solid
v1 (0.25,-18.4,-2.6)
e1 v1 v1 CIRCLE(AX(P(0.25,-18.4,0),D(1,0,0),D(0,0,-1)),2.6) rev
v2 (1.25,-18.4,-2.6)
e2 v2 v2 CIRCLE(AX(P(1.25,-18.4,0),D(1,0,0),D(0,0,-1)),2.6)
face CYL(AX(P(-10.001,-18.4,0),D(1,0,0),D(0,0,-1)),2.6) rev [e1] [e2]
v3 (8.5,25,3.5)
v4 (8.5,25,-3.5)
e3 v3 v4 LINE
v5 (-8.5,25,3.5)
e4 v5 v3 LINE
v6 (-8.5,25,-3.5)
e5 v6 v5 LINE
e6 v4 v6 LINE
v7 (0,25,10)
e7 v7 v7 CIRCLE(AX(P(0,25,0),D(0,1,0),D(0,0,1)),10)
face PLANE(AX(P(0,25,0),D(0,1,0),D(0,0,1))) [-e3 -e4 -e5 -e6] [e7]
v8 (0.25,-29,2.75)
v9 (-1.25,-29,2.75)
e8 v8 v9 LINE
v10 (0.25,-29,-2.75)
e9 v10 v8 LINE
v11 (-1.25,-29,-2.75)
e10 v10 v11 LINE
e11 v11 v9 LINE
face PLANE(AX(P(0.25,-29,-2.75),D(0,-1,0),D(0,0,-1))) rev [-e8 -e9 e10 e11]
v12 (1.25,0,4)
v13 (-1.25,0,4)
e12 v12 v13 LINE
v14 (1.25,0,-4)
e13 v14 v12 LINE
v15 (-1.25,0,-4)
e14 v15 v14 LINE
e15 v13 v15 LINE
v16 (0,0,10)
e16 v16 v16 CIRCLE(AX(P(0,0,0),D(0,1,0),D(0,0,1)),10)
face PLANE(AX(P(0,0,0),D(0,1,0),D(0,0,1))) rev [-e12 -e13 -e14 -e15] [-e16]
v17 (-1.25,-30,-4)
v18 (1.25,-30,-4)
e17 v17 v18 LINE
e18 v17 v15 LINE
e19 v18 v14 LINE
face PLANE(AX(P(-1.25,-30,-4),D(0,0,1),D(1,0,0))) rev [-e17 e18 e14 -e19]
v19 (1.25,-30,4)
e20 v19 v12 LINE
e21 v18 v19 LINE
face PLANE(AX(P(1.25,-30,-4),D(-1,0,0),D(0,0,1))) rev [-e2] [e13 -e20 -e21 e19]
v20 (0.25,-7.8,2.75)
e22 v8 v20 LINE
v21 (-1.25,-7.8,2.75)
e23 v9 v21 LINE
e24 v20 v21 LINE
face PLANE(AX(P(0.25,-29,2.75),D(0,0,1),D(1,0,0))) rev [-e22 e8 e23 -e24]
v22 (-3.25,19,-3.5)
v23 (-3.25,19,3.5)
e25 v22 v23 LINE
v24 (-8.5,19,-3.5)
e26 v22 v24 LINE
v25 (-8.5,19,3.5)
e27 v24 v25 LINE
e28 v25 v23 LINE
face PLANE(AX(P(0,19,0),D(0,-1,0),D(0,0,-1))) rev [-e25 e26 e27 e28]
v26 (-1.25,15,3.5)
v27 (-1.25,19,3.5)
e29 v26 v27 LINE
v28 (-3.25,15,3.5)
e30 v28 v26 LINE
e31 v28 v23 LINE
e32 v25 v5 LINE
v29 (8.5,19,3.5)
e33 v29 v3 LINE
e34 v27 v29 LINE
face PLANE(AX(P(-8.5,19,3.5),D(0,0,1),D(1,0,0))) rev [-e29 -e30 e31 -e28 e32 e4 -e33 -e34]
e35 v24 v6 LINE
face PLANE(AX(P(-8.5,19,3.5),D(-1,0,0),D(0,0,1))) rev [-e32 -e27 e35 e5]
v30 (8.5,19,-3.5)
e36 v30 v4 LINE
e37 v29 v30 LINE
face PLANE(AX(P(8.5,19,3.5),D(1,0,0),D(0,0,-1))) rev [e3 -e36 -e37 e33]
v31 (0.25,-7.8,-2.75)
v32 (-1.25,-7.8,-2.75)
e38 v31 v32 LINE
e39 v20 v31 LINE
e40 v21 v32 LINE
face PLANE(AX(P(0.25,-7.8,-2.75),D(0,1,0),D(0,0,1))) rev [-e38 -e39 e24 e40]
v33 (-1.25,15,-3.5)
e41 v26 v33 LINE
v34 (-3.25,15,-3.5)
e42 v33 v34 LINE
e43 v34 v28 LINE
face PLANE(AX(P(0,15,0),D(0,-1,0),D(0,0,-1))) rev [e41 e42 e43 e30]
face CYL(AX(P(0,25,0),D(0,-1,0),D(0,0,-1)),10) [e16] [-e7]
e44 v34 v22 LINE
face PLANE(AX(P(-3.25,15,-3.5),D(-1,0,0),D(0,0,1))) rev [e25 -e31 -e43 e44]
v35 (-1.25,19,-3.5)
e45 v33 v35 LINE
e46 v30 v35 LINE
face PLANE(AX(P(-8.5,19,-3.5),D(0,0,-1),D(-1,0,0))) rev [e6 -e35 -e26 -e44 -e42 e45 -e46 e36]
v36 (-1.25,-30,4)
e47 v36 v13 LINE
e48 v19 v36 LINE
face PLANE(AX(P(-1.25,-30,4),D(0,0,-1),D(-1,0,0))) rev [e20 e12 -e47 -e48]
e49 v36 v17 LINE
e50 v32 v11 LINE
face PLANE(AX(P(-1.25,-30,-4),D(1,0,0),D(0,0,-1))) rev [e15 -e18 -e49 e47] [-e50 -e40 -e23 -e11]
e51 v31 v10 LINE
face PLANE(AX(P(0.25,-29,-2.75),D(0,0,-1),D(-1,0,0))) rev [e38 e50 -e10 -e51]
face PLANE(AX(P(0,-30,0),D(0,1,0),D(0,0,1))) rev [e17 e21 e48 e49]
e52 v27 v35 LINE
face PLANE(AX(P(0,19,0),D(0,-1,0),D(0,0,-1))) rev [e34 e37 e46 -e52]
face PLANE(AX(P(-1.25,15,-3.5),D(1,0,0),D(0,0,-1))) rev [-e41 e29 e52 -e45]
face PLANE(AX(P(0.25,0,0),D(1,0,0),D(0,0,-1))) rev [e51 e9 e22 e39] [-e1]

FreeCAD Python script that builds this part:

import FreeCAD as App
import Part
import Sketcher
Q = App.Units.Quantity


def add_polygon(sketch, points):
    """Adds a closed chain of lines whose ends are joined by coincident constraints."""
    first, n = sketch.GeometryCount, len(points)
    for a, b in zip(points, points[1:] + points[:1]):
        sketch.addGeometry(Part.LineSegment(App.Vector(*a, 0), App.Vector(*b, 0)), False)
    for i in range(n):
        sketch.addConstraint(Sketcher.Constraint("Coincident", first + i, 2, first + (i + 1) % n, 1))

doc = App.newDocument("Part")
params = doc.addObject("Spreadsheet::Sheet", "Params")
for row, (alias, value) in enumerate([
    ("sketch1_diameter", "20 mm"),
    ("pad1_length", "25 mm"),
    ("sketch2_height", "8 mm"),
    ("sketch2_width", "2.5 mm"),
    ("pad2_length", "30 mm"),
    ("sketch3_diameter", "5.2 mm"),
    ("sketch4_width", "21.2 mm"),
    ("sketch4_height", "5.5 mm"),
    ("pocket2_length", "1.5 mm"),
    ("sketch5_width", "17 mm"),
    ("sketch5_height", "7 mm"),
    ("pocket3_length", "6 mm"),
    ("sketch6_width", "2 mm"),
    ("sketch6_height", "7 mm"),
    ("pocket4_length", "4 mm"),
], start=1):
    params.set(f"A{row}", alias)
    params.set(f"B{row}", "=" + value)
    params.setAlias(f"B{row}", alias)

body = doc.addObject("PartDesign::Body", "Body")

# Sketch on XZ plane
sketch1 = body.newObject("Sketcher::SketchObject", "Sketch")
sketch1.AttachmentSupport = (doc.getObject("XZ_Plane"), [""])
sketch1.MapMode = "FlatFace"
sketch1.addGeometry(Part.Circle(App.Vector(0, 0, 0), App.Vector(0, 0, 1), 10), False)
sketch1.addConstraint(Sketcher.Constraint("Coincident", 0, 3, -1, 1))
sketch1.addConstraint(Sketcher.Constraint("Diameter", 0, Q("20 mm")))
sketch1.setExpression("Constraints[1]", "Params.sketch1_diameter")
pad1 = body.newObject("PartDesign::Pad", "Pad")
pad1.Profile = sketch1
pad1.setExpression("Length", "Params.pad1_length")
pad1.Reversed = True

# Sketch on XZ plane
sketch2 = body.newObject("Sketcher::SketchObject", "Sketch001")
sketch2.AttachmentSupport = (doc.getObject("XZ_Plane"), [""])
sketch2.MapMode = "FlatFace"
add_polygon(sketch2, [(1.25, -4), (1.25, 4), (-1.25, 4), (-1.25, -4)])  # lines 0-3
sketch2.addConstraint(Sketcher.Constraint("Vertical", 0))
sketch2.addConstraint(Sketcher.Constraint("Horizontal", 1))
sketch2.addConstraint(Sketcher.Constraint("Vertical", 2))
sketch2.addConstraint(Sketcher.Constraint("Horizontal", 3))
sketch2.addConstraint(Sketcher.Constraint("Symmetric", 0, 2, 2, 2, -1, 1))
sketch2.addConstraint(Sketcher.Constraint("DistanceY", 0, 1, 0, 2, Q("8 mm")))
sketch2.addConstraint(Sketcher.Constraint("DistanceX", 1, 2, 1, 1, Q("2.5 mm")))
sketch2.setExpression("Constraints[9]", "Params.sketch2_height")
sketch2.setExpression("Constraints[10]", "Params.sketch2_width")
pad2 = body.newObject("PartDesign::Pad", "Pad001")
pad2.Profile = sketch2
pad2.setExpression("Length", "Params.pad2_length")

# Sketch on YZ plane
sketch3 = body.newObject("Sketcher::SketchObject", "Sketch002")
sketch3.AttachmentSupport = (doc.getObject("YZ_Plane"), [""])
sketch3.MapMode = "FlatFace"
sketch3.AttachmentOffset = App.Placement(App.Vector(0, 0, 1.25), App.Rotation())
sketch3.addGeometry(Part.Circle(App.Vector(-18.4, 0, 0), App.Vector(0, 0, 1), 2.6), False)
sketch3.addConstraint(Sketcher.Constraint("PointOnObject", 0, 3, -1))
sketch3.addConstraint(Sketcher.Constraint("Diameter", 0, Q("5.2 mm")))
sketch3.addConstraint(Sketcher.Constraint("DistanceX", 0, 3, -1, 1, Q("18.4 mm")))
sketch3.setExpression("Constraints[1]", "Params.sketch3_diameter")
pocket1 = body.newObject("PartDesign::Pocket", "Pocket")
pocket1.Profile = sketch3
pocket1.Type = "UpToFirst"

# Sketch on YZ plane
sketch4 = body.newObject("Sketcher::SketchObject", "Sketch003")
sketch4.AttachmentSupport = (doc.getObject("YZ_Plane"), [""])
sketch4.MapMode = "FlatFace"
sketch4.AttachmentOffset = App.Placement(App.Vector(0, 0, -1.25), App.Rotation())
add_polygon(sketch4, [(-7.8, -2.75), (-29, -2.75), (-29, 2.75), (-7.8, 2.75)])  # lines 0-3
sketch4.addConstraint(Sketcher.Constraint("Horizontal", 0))
sketch4.addConstraint(Sketcher.Constraint("Vertical", 1))
sketch4.addConstraint(Sketcher.Constraint("Horizontal", 2))
sketch4.addConstraint(Sketcher.Constraint("Vertical", 3))
sketch4.addConstraint(Sketcher.Constraint("DistanceX", 0, 2, 0, 1, Q("21.2 mm")))
sketch4.addConstraint(Sketcher.Constraint("DistanceY", 1, 1, 1, 2, Q("5.5 mm")))
sketch4.addConstraint(Sketcher.Constraint("DistanceX", 0, 2, -1, 1, Q("29 mm")))
sketch4.addConstraint(Sketcher.Constraint("DistanceY", 0, 2, -1, 1, Q("2.75 mm")))
sketch4.setExpression("Constraints[8]", "Params.sketch4_width")
sketch4.setExpression("Constraints[9]", "Params.sketch4_height")
pocket2 = body.newObject("PartDesign::Pocket", "Pocket001")
pocket2.Profile = sketch4
pocket2.setExpression("Length", "Params.pocket2_length")
pocket2.Reversed = True

# Sketch on XZ plane
sketch5 = body.newObject("Sketcher::SketchObject", "Sketch004")
sketch5.AttachmentSupport = (doc.getObject("XZ_Plane"), [""])
sketch5.MapMode = "FlatFace"
sketch5.AttachmentOffset = App.Placement(App.Vector(0, 0, -25), App.Rotation())
add_polygon(sketch5, [(-8.5, -3.5), (-8.5, 3.5), (8.5, 3.5), (8.5, -3.5)])  # lines 0-3
sketch5.addConstraint(Sketcher.Constraint("Vertical", 0))
sketch5.addConstraint(Sketcher.Constraint("Horizontal", 1))
sketch5.addConstraint(Sketcher.Constraint("Vertical", 2))
sketch5.addConstraint(Sketcher.Constraint("Horizontal", 3))
sketch5.addConstraint(Sketcher.Constraint("Symmetric", 0, 2, 2, 2, -1, 1))
sketch5.addConstraint(Sketcher.Constraint("DistanceX", 1, 1, 1, 2, Q("17 mm")))
sketch5.addConstraint(Sketcher.Constraint("DistanceY", 0, 1, 0, 2, Q("7 mm")))
sketch5.setExpression("Constraints[9]", "Params.sketch5_width")
sketch5.setExpression("Constraints[10]", "Params.sketch5_height")
pocket3 = body.newObject("PartDesign::Pocket", "Pocket002")
pocket3.Profile = sketch5
pocket3.setExpression("Length", "Params.pocket3_length")
pocket3.Reversed = True

# Sketch on XZ plane
sketch6 = body.newObject("Sketcher::SketchObject", "Sketch005")
sketch6.AttachmentSupport = (doc.getObject("XZ_Plane"), [""])
sketch6.MapMode = "FlatFace"
sketch6.AttachmentOffset = App.Placement(App.Vector(0, 0, -19), App.Rotation())
add_polygon(sketch6, [(-3.25, -3.5), (-3.25, 3.5), (-1.25, 3.5), (-1.25, -3.5)])  # lines 0-3
sketch6.addConstraint(Sketcher.Constraint("Vertical", 0))
sketch6.addConstraint(Sketcher.Constraint("Horizontal", 1))
sketch6.addConstraint(Sketcher.Constraint("Vertical", 2))
sketch6.addConstraint(Sketcher.Constraint("Horizontal", 3))
sketch6.addConstraint(Sketcher.Constraint("DistanceX", 1, 1, 1, 2, Q("2 mm")))
sketch6.addConstraint(Sketcher.Constraint("DistanceY", 0, 1, 0, 2, Q("7 mm")))
sketch6.addConstraint(Sketcher.Constraint("DistanceY", -1, 1, 0, 2, Q("3.5 mm")))
sketch6.addConstraint(Sketcher.Constraint("DistanceX", 0, 2, -1, 1, Q("3.25 mm")))
sketch6.setExpression("Constraints[8]", "Params.sketch6_width")
sketch6.setExpression("Constraints[9]", "Params.sketch6_height")
pocket4 = body.newObject("PartDesign::Pocket", "Pocket003")
pocket4.Profile = sketch6
pocket4.setExpression("Length", "Params.pocket4_length")
pocket4.Reversed = True

doc.recompute()
